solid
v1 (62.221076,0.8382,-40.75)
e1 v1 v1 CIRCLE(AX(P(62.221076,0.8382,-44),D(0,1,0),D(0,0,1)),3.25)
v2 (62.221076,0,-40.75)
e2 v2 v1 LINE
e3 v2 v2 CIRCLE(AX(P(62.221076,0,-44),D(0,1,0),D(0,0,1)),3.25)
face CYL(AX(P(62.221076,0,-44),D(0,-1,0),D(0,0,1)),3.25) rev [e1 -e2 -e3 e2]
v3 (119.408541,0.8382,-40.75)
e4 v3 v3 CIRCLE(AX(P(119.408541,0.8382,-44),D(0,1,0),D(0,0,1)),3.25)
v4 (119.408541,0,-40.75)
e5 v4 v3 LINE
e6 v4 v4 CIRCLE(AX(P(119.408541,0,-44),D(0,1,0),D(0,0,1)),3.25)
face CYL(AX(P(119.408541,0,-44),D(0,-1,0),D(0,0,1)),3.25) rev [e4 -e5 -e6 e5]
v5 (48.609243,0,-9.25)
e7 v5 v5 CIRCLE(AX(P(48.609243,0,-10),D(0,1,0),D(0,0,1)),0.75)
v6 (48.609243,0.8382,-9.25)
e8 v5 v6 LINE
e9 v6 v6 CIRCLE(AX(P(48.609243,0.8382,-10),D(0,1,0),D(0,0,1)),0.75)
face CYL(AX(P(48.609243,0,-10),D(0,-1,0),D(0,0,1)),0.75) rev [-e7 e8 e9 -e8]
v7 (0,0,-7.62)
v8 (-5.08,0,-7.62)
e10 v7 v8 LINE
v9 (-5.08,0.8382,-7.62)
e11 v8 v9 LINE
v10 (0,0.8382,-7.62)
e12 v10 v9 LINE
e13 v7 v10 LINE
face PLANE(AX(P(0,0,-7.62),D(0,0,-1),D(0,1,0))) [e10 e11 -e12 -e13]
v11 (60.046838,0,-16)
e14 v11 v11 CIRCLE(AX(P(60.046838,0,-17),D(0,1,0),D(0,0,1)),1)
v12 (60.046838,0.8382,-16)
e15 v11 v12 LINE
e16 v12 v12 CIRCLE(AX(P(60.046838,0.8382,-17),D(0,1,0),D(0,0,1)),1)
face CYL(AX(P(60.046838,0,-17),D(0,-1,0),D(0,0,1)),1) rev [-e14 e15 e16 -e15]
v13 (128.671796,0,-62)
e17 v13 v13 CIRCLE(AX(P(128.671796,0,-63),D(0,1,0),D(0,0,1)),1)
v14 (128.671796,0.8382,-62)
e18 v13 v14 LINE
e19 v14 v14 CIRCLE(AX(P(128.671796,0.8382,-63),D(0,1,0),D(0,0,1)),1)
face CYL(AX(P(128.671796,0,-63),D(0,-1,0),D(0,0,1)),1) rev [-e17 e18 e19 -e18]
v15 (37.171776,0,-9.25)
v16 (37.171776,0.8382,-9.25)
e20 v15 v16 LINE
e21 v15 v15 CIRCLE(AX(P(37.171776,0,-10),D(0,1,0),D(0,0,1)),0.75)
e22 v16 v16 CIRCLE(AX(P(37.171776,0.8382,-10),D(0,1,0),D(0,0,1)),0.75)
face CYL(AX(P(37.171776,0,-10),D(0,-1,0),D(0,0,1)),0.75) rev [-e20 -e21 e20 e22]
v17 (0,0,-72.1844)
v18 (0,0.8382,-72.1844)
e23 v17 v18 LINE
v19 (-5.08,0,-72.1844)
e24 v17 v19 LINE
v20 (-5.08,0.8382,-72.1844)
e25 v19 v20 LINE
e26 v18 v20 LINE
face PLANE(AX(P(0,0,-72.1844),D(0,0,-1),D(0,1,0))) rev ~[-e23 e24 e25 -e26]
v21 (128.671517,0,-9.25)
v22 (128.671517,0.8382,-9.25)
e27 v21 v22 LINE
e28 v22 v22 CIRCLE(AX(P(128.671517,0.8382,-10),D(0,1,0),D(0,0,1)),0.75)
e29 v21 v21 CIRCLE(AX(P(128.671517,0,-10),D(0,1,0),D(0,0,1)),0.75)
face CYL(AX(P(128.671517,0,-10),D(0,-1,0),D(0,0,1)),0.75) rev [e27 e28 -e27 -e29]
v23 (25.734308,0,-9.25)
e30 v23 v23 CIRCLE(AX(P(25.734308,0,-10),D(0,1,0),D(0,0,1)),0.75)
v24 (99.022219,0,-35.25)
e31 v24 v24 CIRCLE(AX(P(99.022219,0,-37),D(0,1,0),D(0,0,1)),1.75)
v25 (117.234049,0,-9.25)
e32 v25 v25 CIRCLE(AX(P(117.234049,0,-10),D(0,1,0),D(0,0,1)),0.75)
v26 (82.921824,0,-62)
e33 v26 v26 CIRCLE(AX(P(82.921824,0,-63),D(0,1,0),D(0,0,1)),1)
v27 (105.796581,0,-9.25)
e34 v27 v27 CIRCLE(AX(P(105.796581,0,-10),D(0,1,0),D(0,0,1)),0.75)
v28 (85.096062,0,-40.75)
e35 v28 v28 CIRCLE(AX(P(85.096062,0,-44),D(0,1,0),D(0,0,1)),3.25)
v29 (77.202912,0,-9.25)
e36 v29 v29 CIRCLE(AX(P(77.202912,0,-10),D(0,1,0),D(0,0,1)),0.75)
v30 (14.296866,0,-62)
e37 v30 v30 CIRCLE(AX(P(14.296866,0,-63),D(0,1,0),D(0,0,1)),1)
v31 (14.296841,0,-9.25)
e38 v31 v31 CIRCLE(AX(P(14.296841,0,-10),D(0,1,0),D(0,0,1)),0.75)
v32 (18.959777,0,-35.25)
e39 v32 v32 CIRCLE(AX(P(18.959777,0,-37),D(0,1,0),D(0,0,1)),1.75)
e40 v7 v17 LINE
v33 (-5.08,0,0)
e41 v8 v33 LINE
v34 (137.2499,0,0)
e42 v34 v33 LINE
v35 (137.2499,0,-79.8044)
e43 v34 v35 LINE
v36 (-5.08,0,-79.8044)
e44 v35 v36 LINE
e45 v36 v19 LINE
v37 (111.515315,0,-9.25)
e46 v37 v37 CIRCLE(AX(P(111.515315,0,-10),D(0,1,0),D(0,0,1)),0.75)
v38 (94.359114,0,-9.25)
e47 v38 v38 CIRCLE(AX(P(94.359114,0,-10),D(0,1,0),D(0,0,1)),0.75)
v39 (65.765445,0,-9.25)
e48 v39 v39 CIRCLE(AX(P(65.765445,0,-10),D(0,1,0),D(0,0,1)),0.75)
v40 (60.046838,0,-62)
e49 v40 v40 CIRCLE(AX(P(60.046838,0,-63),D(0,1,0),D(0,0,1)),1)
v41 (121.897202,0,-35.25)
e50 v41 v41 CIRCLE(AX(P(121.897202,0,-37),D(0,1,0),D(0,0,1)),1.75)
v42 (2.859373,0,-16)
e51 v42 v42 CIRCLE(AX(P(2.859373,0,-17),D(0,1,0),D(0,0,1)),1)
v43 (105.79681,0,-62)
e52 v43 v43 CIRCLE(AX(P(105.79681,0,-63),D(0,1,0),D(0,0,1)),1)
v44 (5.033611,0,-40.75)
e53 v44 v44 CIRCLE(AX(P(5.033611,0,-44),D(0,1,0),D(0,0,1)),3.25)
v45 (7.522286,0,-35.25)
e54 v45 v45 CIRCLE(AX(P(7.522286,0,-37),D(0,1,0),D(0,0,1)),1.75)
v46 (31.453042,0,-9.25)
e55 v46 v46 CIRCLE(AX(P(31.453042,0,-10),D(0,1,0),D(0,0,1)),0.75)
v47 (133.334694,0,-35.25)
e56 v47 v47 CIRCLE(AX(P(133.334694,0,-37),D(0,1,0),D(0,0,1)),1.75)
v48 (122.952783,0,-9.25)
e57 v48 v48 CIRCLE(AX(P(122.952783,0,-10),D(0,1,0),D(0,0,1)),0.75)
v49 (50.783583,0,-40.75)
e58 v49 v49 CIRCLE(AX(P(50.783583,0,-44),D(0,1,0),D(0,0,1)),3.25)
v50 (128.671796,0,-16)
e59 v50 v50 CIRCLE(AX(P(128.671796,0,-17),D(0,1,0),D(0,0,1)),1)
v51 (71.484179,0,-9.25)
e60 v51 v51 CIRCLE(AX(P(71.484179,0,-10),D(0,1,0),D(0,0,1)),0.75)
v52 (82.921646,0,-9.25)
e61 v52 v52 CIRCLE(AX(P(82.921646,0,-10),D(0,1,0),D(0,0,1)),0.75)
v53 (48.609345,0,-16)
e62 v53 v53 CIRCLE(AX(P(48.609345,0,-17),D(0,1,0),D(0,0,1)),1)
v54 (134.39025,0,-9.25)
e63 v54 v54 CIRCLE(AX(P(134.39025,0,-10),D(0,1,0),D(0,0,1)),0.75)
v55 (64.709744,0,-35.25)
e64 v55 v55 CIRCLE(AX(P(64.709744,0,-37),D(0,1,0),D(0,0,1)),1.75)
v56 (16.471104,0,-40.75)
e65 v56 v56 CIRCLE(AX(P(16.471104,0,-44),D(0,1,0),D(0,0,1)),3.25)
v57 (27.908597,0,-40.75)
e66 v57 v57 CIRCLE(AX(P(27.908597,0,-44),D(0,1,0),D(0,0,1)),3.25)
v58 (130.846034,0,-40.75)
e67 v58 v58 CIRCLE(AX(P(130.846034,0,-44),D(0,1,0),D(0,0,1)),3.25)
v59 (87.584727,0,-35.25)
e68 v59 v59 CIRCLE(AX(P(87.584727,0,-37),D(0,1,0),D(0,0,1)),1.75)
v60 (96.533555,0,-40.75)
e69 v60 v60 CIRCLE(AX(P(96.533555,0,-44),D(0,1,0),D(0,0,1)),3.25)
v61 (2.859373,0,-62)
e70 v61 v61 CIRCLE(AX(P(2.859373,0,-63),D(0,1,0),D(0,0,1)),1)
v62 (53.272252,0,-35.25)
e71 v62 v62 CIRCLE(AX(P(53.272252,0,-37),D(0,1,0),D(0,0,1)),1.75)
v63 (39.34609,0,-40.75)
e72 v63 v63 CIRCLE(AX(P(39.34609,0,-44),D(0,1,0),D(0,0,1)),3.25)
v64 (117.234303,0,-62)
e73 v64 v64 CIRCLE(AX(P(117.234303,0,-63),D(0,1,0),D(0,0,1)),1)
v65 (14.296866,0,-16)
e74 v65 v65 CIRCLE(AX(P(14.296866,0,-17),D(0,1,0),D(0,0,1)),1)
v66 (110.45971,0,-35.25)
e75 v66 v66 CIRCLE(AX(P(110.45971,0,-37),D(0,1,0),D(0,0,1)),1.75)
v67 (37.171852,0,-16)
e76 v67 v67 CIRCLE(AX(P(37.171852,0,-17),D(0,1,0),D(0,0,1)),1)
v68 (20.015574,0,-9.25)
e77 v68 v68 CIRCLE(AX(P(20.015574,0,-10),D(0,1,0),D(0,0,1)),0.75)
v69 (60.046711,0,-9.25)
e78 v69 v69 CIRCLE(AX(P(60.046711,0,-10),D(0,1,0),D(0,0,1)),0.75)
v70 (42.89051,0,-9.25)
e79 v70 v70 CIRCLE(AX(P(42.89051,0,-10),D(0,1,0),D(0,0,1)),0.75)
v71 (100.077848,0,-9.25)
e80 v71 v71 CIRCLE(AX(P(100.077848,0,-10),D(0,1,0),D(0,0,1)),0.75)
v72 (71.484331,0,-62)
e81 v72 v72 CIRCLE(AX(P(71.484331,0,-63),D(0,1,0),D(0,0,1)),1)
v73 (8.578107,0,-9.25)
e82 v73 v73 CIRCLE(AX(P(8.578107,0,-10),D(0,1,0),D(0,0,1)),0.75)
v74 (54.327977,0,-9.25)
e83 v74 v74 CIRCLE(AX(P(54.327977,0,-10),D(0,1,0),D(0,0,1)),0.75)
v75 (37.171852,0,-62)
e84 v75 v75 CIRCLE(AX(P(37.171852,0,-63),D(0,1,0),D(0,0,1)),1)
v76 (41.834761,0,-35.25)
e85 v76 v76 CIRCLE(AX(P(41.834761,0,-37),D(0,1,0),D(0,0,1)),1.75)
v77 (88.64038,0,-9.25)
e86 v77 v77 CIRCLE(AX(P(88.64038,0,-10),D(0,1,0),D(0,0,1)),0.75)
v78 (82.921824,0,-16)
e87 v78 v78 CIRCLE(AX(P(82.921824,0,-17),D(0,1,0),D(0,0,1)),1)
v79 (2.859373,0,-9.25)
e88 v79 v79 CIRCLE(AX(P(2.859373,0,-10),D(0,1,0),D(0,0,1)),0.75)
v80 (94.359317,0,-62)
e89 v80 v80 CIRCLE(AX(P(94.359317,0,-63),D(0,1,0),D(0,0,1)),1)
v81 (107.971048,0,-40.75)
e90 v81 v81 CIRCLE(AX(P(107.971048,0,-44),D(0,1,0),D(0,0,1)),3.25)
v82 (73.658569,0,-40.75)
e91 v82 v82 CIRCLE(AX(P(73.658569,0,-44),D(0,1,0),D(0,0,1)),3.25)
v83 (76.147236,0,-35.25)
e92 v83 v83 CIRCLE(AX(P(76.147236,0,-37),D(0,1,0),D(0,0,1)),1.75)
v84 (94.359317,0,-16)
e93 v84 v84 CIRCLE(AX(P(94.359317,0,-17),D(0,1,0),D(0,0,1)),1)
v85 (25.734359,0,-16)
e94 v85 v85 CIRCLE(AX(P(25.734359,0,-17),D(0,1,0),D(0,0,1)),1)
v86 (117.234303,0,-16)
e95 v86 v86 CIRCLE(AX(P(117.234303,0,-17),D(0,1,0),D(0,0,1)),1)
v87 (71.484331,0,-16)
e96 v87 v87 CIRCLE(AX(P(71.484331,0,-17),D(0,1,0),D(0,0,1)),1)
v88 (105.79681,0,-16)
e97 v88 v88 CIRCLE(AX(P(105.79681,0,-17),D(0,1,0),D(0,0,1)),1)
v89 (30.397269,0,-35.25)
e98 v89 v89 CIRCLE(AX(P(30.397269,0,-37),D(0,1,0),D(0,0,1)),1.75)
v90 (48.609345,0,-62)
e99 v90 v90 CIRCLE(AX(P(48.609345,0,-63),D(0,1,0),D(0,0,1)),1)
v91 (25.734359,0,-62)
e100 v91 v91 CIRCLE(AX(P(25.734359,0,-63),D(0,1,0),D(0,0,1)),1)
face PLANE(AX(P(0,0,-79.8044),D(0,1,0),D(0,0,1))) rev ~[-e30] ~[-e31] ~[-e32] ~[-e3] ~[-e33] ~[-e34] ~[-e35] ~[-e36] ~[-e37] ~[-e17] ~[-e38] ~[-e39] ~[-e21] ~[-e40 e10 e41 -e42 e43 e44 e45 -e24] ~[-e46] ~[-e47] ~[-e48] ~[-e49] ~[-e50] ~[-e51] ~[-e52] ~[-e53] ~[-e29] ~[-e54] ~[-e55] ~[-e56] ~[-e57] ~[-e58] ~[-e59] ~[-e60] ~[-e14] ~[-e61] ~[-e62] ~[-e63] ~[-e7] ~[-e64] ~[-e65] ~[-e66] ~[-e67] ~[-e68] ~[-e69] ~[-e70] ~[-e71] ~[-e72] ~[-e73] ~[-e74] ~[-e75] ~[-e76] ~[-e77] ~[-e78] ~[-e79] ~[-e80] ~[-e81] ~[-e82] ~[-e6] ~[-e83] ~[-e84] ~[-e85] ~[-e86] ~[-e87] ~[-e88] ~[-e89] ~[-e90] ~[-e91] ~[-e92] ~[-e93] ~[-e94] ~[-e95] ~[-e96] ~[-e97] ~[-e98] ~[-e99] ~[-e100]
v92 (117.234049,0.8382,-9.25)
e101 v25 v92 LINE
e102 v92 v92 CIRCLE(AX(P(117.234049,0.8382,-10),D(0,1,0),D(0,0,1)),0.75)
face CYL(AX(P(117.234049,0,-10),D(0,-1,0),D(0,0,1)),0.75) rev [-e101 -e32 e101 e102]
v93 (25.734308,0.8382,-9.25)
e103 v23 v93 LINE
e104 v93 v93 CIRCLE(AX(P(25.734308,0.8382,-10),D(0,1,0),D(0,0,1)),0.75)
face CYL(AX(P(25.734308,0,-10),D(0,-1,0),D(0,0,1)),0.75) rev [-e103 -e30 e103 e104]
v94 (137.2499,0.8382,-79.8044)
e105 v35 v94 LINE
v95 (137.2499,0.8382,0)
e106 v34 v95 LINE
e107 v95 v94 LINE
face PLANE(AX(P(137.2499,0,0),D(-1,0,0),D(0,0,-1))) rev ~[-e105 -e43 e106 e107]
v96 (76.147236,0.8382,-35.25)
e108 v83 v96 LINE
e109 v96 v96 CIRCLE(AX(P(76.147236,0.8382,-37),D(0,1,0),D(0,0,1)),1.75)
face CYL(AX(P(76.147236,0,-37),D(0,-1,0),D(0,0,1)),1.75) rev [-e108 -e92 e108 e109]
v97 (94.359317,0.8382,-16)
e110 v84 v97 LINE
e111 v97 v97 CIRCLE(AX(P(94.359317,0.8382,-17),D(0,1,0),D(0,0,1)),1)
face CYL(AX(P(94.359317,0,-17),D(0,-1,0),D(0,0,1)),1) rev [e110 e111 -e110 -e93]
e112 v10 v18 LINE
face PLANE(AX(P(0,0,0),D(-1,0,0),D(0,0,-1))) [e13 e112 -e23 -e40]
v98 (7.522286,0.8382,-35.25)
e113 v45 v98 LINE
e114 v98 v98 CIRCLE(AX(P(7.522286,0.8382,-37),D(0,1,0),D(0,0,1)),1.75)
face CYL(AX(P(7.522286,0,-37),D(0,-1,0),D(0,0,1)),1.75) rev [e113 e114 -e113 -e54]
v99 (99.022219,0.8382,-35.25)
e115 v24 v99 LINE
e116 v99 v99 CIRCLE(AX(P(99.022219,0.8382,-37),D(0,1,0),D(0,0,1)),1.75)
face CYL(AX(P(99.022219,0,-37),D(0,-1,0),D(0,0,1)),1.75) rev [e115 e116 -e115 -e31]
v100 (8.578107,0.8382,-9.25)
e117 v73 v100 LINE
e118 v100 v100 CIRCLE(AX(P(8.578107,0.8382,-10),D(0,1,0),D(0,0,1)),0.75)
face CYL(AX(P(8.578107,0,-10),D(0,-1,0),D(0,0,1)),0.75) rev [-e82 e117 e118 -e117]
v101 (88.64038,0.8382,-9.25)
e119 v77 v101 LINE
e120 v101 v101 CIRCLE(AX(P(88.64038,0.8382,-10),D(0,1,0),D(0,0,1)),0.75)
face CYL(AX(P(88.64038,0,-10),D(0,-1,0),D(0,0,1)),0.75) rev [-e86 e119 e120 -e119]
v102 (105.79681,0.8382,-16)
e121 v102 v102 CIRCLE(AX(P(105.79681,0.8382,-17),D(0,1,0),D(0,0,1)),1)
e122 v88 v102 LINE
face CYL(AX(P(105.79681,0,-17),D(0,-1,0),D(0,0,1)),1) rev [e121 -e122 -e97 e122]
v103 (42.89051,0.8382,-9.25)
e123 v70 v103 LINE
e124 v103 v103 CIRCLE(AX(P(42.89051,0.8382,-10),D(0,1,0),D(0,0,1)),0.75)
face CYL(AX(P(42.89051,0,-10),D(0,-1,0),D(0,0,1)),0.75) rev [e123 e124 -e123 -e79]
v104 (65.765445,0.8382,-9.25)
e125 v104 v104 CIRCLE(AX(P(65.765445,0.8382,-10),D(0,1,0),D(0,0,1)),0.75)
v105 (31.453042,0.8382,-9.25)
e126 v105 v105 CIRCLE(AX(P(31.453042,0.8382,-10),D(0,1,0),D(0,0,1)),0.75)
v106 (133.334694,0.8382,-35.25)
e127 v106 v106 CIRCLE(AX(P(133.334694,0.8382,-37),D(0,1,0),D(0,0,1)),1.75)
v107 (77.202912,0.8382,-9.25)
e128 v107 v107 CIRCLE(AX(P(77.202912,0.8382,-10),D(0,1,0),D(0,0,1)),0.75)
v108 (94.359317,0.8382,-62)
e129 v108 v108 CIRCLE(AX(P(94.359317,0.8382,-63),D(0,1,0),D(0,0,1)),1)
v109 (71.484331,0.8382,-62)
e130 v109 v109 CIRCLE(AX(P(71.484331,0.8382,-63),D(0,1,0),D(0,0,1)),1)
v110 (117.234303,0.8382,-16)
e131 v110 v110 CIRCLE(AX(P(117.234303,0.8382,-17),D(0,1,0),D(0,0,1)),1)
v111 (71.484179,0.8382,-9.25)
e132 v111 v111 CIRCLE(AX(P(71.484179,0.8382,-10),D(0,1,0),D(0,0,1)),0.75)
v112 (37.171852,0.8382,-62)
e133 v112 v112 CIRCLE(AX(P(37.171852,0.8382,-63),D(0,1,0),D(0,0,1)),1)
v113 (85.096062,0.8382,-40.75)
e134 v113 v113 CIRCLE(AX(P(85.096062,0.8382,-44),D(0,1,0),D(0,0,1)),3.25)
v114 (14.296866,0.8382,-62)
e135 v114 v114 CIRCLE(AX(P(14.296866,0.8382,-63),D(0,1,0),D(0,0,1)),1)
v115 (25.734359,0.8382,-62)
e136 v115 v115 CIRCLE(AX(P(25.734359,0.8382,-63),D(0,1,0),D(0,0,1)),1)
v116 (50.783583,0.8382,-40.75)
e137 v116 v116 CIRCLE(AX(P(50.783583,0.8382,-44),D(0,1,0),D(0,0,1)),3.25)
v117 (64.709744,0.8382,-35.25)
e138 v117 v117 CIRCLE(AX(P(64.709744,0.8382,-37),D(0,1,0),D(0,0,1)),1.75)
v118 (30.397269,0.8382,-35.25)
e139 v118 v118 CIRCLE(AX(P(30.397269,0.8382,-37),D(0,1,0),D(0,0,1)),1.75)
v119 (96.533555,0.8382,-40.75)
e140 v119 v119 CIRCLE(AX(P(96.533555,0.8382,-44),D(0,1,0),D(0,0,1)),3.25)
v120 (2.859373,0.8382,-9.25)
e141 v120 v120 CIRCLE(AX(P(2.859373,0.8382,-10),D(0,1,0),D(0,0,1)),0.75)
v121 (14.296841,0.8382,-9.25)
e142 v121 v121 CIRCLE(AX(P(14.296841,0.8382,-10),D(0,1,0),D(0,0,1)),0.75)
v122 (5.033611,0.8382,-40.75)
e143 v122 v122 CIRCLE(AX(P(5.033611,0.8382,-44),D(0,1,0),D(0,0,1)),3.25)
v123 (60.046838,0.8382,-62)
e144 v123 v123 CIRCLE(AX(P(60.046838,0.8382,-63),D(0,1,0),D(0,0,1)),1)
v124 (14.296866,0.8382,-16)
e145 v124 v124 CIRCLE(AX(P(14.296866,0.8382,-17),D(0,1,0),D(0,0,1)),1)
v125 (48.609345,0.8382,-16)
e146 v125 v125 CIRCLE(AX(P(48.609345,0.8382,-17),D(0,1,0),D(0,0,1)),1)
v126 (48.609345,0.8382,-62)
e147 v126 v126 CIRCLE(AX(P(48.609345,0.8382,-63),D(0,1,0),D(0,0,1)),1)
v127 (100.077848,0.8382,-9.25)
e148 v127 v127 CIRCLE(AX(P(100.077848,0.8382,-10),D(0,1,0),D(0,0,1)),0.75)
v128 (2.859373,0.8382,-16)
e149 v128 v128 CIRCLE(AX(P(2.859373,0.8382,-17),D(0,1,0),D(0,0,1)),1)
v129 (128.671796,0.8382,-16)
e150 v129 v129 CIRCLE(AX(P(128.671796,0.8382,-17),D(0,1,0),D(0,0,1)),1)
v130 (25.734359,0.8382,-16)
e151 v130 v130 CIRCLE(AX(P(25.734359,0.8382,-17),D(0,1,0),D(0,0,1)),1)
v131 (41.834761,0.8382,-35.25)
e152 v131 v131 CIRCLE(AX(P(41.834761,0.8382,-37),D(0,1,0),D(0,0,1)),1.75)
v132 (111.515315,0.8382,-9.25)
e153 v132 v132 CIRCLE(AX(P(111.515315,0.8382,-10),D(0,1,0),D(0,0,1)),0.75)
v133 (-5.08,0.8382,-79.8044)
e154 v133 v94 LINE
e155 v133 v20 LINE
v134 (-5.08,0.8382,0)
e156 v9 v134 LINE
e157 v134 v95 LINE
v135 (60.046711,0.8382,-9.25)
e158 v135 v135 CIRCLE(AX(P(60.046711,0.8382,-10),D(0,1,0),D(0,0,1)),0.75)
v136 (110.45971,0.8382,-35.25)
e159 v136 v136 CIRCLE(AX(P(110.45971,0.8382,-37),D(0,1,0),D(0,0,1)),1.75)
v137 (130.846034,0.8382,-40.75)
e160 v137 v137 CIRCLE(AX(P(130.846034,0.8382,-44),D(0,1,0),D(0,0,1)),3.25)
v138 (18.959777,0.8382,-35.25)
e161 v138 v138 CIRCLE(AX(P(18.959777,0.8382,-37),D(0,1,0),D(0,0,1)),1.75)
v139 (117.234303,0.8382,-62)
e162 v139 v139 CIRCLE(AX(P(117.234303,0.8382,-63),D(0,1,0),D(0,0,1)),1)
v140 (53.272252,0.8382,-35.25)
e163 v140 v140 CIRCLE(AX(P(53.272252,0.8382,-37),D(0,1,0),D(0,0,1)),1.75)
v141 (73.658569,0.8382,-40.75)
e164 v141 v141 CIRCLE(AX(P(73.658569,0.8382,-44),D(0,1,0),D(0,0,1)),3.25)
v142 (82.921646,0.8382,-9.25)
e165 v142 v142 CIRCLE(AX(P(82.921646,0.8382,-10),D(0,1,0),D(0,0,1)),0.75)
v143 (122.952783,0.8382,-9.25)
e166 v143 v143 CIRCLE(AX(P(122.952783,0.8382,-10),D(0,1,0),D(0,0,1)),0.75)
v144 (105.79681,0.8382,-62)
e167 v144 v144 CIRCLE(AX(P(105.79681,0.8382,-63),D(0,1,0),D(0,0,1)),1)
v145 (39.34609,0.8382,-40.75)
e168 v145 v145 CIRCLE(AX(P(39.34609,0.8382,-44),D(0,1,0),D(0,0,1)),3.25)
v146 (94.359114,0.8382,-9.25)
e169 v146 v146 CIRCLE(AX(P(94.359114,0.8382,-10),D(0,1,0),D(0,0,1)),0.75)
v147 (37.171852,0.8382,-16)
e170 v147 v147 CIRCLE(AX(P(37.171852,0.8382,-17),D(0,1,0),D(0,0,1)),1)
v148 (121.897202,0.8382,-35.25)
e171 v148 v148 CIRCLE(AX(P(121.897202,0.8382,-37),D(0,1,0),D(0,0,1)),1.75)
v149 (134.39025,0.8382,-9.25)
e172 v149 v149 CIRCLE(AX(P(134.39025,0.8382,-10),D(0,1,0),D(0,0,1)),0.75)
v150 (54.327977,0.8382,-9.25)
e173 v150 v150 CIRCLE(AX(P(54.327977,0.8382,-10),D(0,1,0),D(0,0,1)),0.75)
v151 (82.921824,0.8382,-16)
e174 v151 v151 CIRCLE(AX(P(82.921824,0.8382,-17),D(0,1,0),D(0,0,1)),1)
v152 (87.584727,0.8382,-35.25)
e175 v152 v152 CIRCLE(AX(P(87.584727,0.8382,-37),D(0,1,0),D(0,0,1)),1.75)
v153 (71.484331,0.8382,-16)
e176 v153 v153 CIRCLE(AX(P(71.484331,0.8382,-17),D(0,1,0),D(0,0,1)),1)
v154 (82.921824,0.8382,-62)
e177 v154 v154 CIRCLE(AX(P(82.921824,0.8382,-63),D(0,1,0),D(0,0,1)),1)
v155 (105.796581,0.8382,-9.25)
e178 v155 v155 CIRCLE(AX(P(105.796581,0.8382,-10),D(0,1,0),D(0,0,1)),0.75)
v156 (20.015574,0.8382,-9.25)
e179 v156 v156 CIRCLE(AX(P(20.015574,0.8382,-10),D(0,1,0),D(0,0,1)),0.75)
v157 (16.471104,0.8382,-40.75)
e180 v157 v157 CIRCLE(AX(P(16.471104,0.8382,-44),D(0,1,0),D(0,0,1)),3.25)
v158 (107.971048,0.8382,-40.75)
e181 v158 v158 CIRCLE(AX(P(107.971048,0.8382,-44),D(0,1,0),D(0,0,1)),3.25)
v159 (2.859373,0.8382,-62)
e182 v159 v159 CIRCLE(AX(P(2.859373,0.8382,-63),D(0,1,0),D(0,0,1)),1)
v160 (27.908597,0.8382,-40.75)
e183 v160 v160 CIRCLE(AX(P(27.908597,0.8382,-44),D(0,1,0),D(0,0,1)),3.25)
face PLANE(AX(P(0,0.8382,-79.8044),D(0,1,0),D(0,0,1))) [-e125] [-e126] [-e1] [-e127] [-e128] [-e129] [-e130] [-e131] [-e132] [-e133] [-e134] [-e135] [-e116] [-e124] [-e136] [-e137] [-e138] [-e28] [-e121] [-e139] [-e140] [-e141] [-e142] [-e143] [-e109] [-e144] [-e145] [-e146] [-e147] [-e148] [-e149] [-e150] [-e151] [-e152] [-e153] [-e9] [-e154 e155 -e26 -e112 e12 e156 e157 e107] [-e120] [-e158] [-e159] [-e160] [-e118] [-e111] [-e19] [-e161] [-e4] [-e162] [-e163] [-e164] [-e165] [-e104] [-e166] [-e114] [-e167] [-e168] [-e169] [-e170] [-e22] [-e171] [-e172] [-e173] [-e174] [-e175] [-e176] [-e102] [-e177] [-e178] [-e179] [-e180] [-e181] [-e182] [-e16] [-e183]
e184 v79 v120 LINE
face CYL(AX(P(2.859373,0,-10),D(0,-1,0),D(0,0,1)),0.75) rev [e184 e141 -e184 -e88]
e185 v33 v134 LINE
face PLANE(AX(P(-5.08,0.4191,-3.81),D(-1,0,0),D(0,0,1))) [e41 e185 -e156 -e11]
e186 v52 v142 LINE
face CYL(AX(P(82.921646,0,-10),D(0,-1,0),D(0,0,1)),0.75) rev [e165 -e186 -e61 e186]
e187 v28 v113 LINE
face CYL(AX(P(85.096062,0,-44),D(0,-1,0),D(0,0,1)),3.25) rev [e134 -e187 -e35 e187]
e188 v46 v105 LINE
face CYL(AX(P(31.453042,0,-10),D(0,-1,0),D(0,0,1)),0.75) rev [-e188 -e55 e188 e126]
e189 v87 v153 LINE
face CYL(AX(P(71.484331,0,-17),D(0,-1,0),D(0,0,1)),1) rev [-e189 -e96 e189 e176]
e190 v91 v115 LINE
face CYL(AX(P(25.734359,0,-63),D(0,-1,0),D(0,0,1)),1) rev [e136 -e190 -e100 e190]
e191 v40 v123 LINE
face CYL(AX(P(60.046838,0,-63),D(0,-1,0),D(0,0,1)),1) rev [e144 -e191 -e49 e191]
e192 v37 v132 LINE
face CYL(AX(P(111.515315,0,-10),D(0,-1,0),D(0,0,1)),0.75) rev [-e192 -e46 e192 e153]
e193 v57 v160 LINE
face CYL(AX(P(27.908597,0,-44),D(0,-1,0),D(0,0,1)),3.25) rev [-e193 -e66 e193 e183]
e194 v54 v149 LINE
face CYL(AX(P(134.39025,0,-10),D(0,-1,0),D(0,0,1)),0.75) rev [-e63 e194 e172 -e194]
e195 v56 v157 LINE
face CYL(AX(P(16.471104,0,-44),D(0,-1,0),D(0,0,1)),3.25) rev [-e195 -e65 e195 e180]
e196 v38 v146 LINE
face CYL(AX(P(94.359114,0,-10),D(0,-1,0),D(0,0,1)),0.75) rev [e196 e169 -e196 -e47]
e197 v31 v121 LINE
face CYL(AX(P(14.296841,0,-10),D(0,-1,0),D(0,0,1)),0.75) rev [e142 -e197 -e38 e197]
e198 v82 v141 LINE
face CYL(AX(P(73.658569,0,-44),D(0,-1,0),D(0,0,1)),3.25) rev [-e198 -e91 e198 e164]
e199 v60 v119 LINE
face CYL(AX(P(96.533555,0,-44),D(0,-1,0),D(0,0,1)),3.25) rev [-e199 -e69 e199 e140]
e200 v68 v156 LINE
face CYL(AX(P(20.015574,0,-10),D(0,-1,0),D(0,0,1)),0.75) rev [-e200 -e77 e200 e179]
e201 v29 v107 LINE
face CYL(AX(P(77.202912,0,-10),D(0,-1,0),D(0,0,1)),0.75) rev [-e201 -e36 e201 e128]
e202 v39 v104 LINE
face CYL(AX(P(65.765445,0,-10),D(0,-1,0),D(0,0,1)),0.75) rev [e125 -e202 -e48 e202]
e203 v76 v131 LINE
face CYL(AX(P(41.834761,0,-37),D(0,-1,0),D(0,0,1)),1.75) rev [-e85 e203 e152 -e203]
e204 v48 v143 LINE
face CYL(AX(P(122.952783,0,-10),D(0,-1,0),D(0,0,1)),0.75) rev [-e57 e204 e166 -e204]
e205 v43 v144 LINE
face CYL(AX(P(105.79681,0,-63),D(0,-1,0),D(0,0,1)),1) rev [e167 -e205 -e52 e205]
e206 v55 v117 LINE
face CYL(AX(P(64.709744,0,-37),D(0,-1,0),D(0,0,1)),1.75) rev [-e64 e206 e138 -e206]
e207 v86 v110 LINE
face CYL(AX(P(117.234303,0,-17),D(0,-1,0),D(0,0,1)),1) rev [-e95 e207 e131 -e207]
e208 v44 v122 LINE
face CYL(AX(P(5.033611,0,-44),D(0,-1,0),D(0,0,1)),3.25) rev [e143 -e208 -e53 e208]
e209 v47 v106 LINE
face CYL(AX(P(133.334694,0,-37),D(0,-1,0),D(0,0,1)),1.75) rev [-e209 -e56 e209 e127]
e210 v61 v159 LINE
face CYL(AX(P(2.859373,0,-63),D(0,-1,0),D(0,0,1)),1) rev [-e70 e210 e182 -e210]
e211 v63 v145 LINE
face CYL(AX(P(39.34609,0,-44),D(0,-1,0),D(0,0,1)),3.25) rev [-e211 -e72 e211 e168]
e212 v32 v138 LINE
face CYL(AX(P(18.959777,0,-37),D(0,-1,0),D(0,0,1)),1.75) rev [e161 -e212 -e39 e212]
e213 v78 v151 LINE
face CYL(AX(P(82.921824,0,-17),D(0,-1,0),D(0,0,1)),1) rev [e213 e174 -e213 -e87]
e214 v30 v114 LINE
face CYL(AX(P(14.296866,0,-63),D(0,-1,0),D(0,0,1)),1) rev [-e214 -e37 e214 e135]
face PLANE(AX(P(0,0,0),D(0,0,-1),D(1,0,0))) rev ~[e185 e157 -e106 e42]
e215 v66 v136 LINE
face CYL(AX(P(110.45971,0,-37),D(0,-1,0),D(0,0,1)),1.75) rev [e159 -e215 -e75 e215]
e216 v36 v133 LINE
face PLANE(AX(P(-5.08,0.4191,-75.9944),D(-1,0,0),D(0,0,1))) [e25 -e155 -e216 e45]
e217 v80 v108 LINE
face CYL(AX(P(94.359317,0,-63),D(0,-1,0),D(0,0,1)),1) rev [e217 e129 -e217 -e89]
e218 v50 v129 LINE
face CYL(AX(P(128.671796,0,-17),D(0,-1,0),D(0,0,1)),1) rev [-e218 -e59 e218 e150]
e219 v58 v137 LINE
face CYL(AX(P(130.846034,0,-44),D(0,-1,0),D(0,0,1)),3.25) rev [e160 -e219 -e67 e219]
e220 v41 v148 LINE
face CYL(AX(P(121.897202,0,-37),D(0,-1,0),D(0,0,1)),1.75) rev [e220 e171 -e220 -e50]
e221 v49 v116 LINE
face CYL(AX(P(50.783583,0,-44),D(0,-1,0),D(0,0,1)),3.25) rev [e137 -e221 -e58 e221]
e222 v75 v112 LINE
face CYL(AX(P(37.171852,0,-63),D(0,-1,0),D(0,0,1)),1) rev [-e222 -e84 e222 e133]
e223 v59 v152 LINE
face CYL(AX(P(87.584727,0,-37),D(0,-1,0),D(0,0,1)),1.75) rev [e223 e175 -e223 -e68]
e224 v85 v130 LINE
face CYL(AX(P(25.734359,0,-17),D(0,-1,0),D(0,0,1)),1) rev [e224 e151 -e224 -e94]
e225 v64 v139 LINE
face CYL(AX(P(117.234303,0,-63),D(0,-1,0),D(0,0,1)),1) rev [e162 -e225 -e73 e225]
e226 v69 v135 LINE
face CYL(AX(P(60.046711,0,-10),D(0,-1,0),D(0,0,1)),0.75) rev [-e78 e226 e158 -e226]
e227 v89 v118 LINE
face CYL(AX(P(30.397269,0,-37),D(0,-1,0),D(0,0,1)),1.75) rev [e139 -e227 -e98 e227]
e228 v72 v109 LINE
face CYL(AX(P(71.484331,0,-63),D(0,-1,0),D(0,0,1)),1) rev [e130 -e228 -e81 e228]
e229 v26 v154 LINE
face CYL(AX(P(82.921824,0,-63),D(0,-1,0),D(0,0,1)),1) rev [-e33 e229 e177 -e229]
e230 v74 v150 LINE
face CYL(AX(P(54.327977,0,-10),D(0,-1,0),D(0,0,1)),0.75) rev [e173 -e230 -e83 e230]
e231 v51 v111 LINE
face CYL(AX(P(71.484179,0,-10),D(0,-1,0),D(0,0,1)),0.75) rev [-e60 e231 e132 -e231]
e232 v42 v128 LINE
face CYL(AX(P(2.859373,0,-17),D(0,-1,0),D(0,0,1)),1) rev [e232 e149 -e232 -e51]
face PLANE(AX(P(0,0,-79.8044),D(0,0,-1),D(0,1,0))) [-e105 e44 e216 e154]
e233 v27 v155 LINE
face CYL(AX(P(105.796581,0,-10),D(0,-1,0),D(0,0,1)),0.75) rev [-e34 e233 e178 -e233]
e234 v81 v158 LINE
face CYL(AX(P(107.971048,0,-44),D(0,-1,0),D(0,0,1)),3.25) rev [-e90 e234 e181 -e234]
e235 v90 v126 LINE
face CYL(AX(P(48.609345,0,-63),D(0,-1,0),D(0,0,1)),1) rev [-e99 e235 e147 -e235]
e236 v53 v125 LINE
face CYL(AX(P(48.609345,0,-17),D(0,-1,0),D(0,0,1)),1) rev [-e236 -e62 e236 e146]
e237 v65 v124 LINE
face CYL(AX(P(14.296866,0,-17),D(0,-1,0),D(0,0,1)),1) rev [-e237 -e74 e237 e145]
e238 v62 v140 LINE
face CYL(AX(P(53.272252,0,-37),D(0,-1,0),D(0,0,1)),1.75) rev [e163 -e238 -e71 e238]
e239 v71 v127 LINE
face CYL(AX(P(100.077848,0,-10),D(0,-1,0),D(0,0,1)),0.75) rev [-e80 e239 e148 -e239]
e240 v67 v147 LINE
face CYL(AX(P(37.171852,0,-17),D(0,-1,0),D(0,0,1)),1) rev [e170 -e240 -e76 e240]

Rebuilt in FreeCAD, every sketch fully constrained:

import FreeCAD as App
import Part
import Sketcher
from FreeCAD import Vector

doc = App.newDocument("Part")
body = doc.addObject("PartDesign::Body", "Body")

sketch1 = body.newObject("Sketcher::SketchObject", "Sketch")
sketch1.AttachmentSupport = (doc.getObject("XZ_Plane"), [""])
sketch1.MapMode = "FlatFace"
sketch1.addGeometry([
    Part.LineSegment(Vector(0, -79.8, 0), Vector(0, 0, 0)),
    Part.LineSegment(Vector(0, 0, 0), Vector(137.2, 0, 0)),
    Part.LineSegment(Vector(137.2, 0, 0), Vector(137.2, -79.8, 0)),
    Part.LineSegment(Vector(137.2, -79.8, 0), Vector(0, -79.8, 0)),
    Part.Circle(Vector(2.9, -10, 0), Vector(0, 0, 1), 0.8),
    Part.Circle(Vector(8.6, -10, 0), Vector(0, 0, 1), 0.8),
    Part.Circle(Vector(14.3, -10, 0), Vector(0, 0, 1), 0.8),
    Part.Circle(Vector(20, -10, 0), Vector(0, 0, 1), 0.8),
    Part.Circle(Vector(25.7, -10, 0), Vector(0, 0, 1), 0.8),
    Part.Circle(Vector(31.5, -10, 0), Vector(0, 0, 1), 0.8),
    Part.Circle(Vector(2.9, -17, 0), Vector(0, 0, 1), 1),
    Part.Circle(Vector(14.3, -17, 0), Vector(0, 0, 1), 1),
    Part.Circle(Vector(25.7, -17, 0), Vector(0, 0, 1), 1),
    Part.Circle(Vector(37.2, -10, 0), Vector(0, 0, 1), 0.8),
    Part.Circle(Vector(42.9, -10, 0), Vector(0, 0, 1), 0.8),
    Part.Circle(Vector(48.6, -10, 0), Vector(0, 0, 1), 0.8),
    Part.Circle(Vector(54.3, -10, 0), Vector(0, 0, 1), 0.8),
    Part.Circle(Vector(60, -10, 0), Vector(0, 0, 1), 0.8),
    Part.Circle(Vector(65.8, -10, 0), Vector(0, 0, 1), 0.8),
    Part.Circle(Vector(37.2, -17, 0), Vector(0, 0, 1), 1),
    Part.Circle(Vector(48.6, -17, 0), Vector(0, 0, 1), 1),
    Part.Circle(Vector(60, -17, 0), Vector(0, 0, 1), 1),
    Part.Circle(Vector(71.5, -10, 0), Vector(0, 0, 1), 0.8),
    Part.Circle(Vector(77.2, -10, 0), Vector(0, 0, 1), 0.8),
    Part.Circle(Vector(82.9, -10, 0), Vector(0, 0, 1), 0.8),
    Part.Circle(Vector(88.6, -10, 0), Vector(0, 0, 1), 0.8),
    Part.Circle(Vector(94.4, -10, 0), Vector(0, 0, 1), 0.8),
    Part.Circle(Vector(100.1, -10, 0), Vector(0, 0, 1), 0.8),
    Part.Circle(Vector(71.5, -17, 0), Vector(0, 0, 1), 1),
    Part.Circle(Vector(82.9, -17, 0), Vector(0, 0, 1), 1),
    Part.Circle(Vector(94.4, -17, 0), Vector(0, 0, 1), 1),
    Part.Circle(Vector(105.8, -10, 0), Vector(0, 0, 1), 0.8),
    Part.Circle(Vector(111.5, -10, 0), Vector(0, 0, 1), 0.8),
    Part.Circle(Vector(117.2, -10, 0), Vector(0, 0, 1), 0.8),
    Part.Circle(Vector(123, -10, 0), Vector(0, 0, 1), 0.8),
    Part.Circle(Vector(128.7, -10, 0), Vector(0, 0, 1), 0.8),
    Part.Circle(Vector(134.4, -10, 0), Vector(0, 0, 1), 0.8),
    Part.Circle(Vector(105.8, -17, 0), Vector(0, 0, 1), 1),
    Part.Circle(Vector(117.2, -17, 0), Vector(0, 0, 1), 1),
    Part.Circle(Vector(128.7, -17, 0), Vector(0, 0, 1), 1),
    Part.Circle(Vector(7.5, -37, 0), Vector(0, 0, 1), 1.8),
    Part.Circle(Vector(19, -37, 0), Vector(0, 0, 1), 1.8),
    Part.Circle(Vector(30.4, -37, 0), Vector(0, 0, 1), 1.8),
    Part.Circle(Vector(5, -44, 0), Vector(0, 0, 1), 3.2),
    Part.Circle(Vector(16.5, -44, 0), Vector(0, 0, 1), 3.2),
    Part.Circle(Vector(27.9, -44, 0), Vector(0, 0, 1), 3.2),
    Part.Circle(Vector(41.8, -37, 0), Vector(0, 0, 1), 1.8),
    Part.Circle(Vector(53.3, -37, 0), Vector(0, 0, 1), 1.8),
    Part.Circle(Vector(64.7, -37, 0), Vector(0, 0, 1), 1.8),
    Part.Circle(Vector(39.3, -44, 0), Vector(0, 0, 1), 3.2),
    Part.Circle(Vector(50.8, -44, 0), Vector(0, 0, 1), 3.2),
    Part.Circle(Vector(62.2, -44, 0), Vector(0, 0, 1), 3.2),
    Part.Circle(Vector(2.9, -63, 0), Vector(0, 0, 1), 1),
    Part.Circle(Vector(14.3, -63, 0), Vector(0, 0, 1), 1),
    Part.Circle(Vector(25.7, -63, 0), Vector(0, 0, 1), 1),
    Part.Circle(Vector(37.2, -63, 0), Vector(0, 0, 1), 1),
    Part.Circle(Vector(48.6, -63, 0), Vector(0, 0, 1), 1),
    Part.Circle(Vector(60, -63, 0), Vector(0, 0, 1), 1),
    Part.Circle(Vector(76.1, -37, 0), Vector(0, 0, 1), 1.8),
    Part.Circle(Vector(87.6, -37, 0), Vector(0, 0, 1), 1.8),
    Part.Circle(Vector(99, -37, 0), Vector(0, 0, 1), 1.8),
    Part.Circle(Vector(73.7, -44, 0), Vector(0, 0, 1), 3.2),
    Part.Circle(Vector(85.1, -44, 0), Vector(0, 0, 1), 3.2),
    Part.Circle(Vector(96.5, -44, 0), Vector(0, 0, 1), 3.2),
    Part.Circle(Vector(110.5, -37, 0), Vector(0, 0, 1), 1.8),
    Part.Circle(Vector(121.9, -37, 0), Vector(0, 0, 1), 1.8),
    Part.Circle(Vector(133.3, -37, 0), Vector(0, 0, 1), 1.8),
    Part.Circle(Vector(108, -44, 0), Vector(0, 0, 1), 3.2),
    Part.Circle(Vector(119.4, -44, 0), Vector(0, 0, 1), 3.2),
    Part.Circle(Vector(130.8, -44, 0), Vector(0, 0, 1), 3.2),
    Part.Circle(Vector(71.5, -63, 0), Vector(0, 0, 1), 1),
    Part.Circle(Vector(82.9, -63, 0), Vector(0, 0, 1), 1),
    Part.Circle(Vector(94.4, -63, 0), Vector(0, 0, 1), 1),
    Part.Circle(Vector(105.8, -63, 0), Vector(0, 0, 1), 1),
    Part.Circle(Vector(117.2, -63, 0), Vector(0, 0, 1), 1),
    Part.Circle(Vector(128.7, -63, 0), Vector(0, 0, 1), 1),
], False)
sketch1.addConstraint([
    Sketcher.Constraint("Coincident", 0, 2, 1, 1),
    Sketcher.Constraint("Coincident", 1, 2, 2, 1),
    Sketcher.Constraint("Coincident", 2, 2, 3, 1),
    Sketcher.Constraint("Coincident", 3, 2, 0, 1),
    Sketcher.Constraint("Vertical", 0),
    Sketcher.Constraint("Horizontal", 1),
    Sketcher.Constraint("Vertical", 2),
    Sketcher.Constraint("Horizontal", 3),
    Sketcher.Constraint("Coincident", 0, 2, -1, 1),
    Sketcher.Constraint("Equal", 4, 5),
    Sketcher.Constraint("Equal", 5, 6),
    Sketcher.Constraint("Equal", 6, 7),
    Sketcher.Constraint("Equal", 7, 8),
    Sketcher.Constraint("Equal", 8, 9),
    Sketcher.Constraint("Equal", 10, 11),
    Sketcher.Constraint("Equal", 11, 12),
    Sketcher.Constraint("Equal", 9, 13),
    Sketcher.Constraint("Equal", 13, 14),
    Sketcher.Constraint("Equal", 14, 15),
    Sketcher.Constraint("Equal", 15, 16),
    Sketcher.Constraint("Equal", 16, 17),
    Sketcher.Constraint("Equal", 17, 18),
    Sketcher.Constraint("Equal", 12, 19),
    Sketcher.Constraint("Equal", 19, 20),
    Sketcher.Constraint("Equal", 20, 21),
    Sketcher.Constraint("Equal", 18, 22),
    Sketcher.Constraint("Equal", 22, 23),
    Sketcher.Constraint("Equal", 23, 24),
    Sketcher.Constraint("Equal", 24, 25),
    Sketcher.Constraint("Equal", 25, 26),
    Sketcher.Constraint("Equal", 26, 27),
    Sketcher.Constraint("Equal", 21, 28),
    Sketcher.Constraint("Equal", 28, 29),
    Sketcher.Constraint("Equal", 29, 30),
    Sketcher.Constraint("Equal", 27, 31),
    Sketcher.Constraint("Equal", 31, 32),
    Sketcher.Constraint("Equal", 32, 33),
    Sketcher.Constraint("Equal", 33, 34),
    Sketcher.Constraint("Equal", 34, 35),
    Sketcher.Constraint("Equal", 35, 36),
    Sketcher.Constraint("Equal", 30, 37),
    Sketcher.Constraint("Equal", 37, 38),
    Sketcher.Constraint("Equal", 38, 39),
    Sketcher.Constraint("Equal", 40, 41),
    Sketcher.Constraint("Equal", 41, 42),
    Sketcher.Constraint("Equal", 43, 44),
    Sketcher.Constraint("Equal", 44, 45),
    Sketcher.Constraint("Equal", 42, 46),
    Sketcher.Constraint("Equal", 46, 47),
    Sketcher.Constraint("Equal", 47, 48),
    Sketcher.Constraint("Equal", 45, 49),
    Sketcher.Constraint("Equal", 49, 50),
    Sketcher.Constraint("Equal", 50, 51),
    Sketcher.Constraint("Equal", 39, 52),
    Sketcher.Constraint("Equal", 52, 53),
    Sketcher.Constraint("Equal", 53, 54),
    Sketcher.Constraint("Equal", 54, 55),
    Sketcher.Constraint("Equal", 55, 56),
    Sketcher.Constraint("Equal", 56, 57),
    Sketcher.Constraint("Equal", 48, 58),
    Sketcher.Constraint("Equal", 58, 59),
    Sketcher.Constraint("Equal", 59, 60),
    Sketcher.Constraint("Equal", 51, 61),
    Sketcher.Constraint("Equal", 61, 62),
    Sketcher.Constraint("Equal", 62, 63),
    Sketcher.Constraint("Equal", 60, 64),
    Sketcher.Constraint("Equal", 64, 65),
    Sketcher.Constraint("Equal", 65, 66),
    Sketcher.Constraint("Equal", 63, 67),
    Sketcher.Constraint("Equal", 67, 68),
    Sketcher.Constraint("Equal", 68, 69),
    Sketcher.Constraint("Equal", 57, 70),
    Sketcher.Constraint("Equal", 70, 71),
    Sketcher.Constraint("Equal", 71, 72),
    Sketcher.Constraint("Equal", 72, 73),
    Sketcher.Constraint("Equal", 73, 74),
    Sketcher.Constraint("Equal", 74, 75),
    Sketcher.Constraint("Horizontal", 4, 3, 5, 3),
    Sketcher.Constraint("Horizontal", 5, 3, 6, 3),
    Sketcher.Constraint("Horizontal", 6, 3, 7, 3),
    Sketcher.Constraint("Horizontal", 7, 3, 8, 3),
    Sketcher.Constraint("Horizontal", 8, 3, 9, 3),
    Sketcher.Constraint("Horizontal", 10, 3, 11, 3),
    Sketcher.Constraint("Horizontal", 11, 3, 12, 3),
    Sketcher.Constraint("Horizontal", 9, 3, 13, 3),
    Sketcher.Constraint("Horizontal", 13, 3, 14, 3),
    Sketcher.Constraint("Horizontal", 14, 3, 15, 3),
    Sketcher.Constraint("Horizontal", 15, 3, 16, 3),
    Sketcher.Constraint("Horizontal", 16, 3, 17, 3),
    Sketcher.Constraint("Horizontal", 17, 3, 18, 3),
    Sketcher.Constraint("Horizontal", 12, 3, 19, 3),
    Sketcher.Constraint("Horizontal", 19, 3, 20, 3),
    Sketcher.Constraint("Horizontal", 20, 3, 21, 3),
    Sketcher.Constraint("Horizontal", 18, 3, 22, 3),
    Sketcher.Constraint("Horizontal", 22, 3, 23, 3),
    Sketcher.Constraint("Horizontal", 23, 3, 24, 3),
    Sketcher.Constraint("Horizontal", 24, 3, 25, 3),
    Sketcher.Constraint("Horizontal", 25, 3, 26, 3),
    Sketcher.Constraint("Horizontal", 26, 3, 27, 3),
    Sketcher.Constraint("Horizontal", 21, 3, 28, 3),
    Sketcher.Constraint("Horizontal", 28, 3, 29, 3),
    Sketcher.Constraint("Horizontal", 29, 3, 30, 3),
    Sketcher.Constraint("Horizontal", 27, 3, 31, 3),
    Sketcher.Constraint("Horizontal", 31, 3, 32, 3),
    Sketcher.Constraint("Horizontal", 32, 3, 33, 3),
    Sketcher.Constraint("Horizontal", 33, 3, 34, 3),
    Sketcher.Constraint("Horizontal", 34, 3, 35, 3),
    Sketcher.Constraint("Horizontal", 35, 3, 36, 3),
    Sketcher.Constraint("Horizontal", 30, 3, 37, 3),
    Sketcher.Constraint("Horizontal", 37, 3, 38, 3),
    Sketcher.Constraint("Horizontal", 38, 3, 39, 3),
    Sketcher.Constraint("Horizontal", 40, 3, 41, 3),
    Sketcher.Constraint("Horizontal", 41, 3, 42, 3),
    Sketcher.Constraint("Horizontal", 43, 3, 44, 3),
    Sketcher.Constraint("Horizontal", 44, 3, 45, 3),
    Sketcher.Constraint("Horizontal", 42, 3, 46, 3),
    Sketcher.Constraint("Horizontal", 46, 3, 47, 3),
    Sketcher.Constraint("Horizontal", 47, 3, 48, 3),
    Sketcher.Constraint("Horizontal", 45, 3, 49, 3),
    Sketcher.Constraint("Horizontal", 49, 3, 50, 3),
    Sketcher.Constraint("Horizontal", 50, 3, 51, 3),
    Sketcher.Constraint("Horizontal", 52, 3, 53, 3),
    Sketcher.Constraint("Horizontal", 53, 3, 54, 3),
    Sketcher.Constraint("Horizontal", 54, 3, 55, 3),
    Sketcher.Constraint("Horizontal", 55, 3, 56, 3),
    Sketcher.Constraint("Horizontal", 56, 3, 57, 3),
    Sketcher.Constraint("Horizontal", 48, 3, 58, 3),
    Sketcher.Constraint("Horizontal", 58, 3, 59, 3),
    Sketcher.Constraint("Horizontal", 59, 3, 60, 3),
    Sketcher.Constraint("Horizontal", 51, 3, 61, 3),
    Sketcher.Constraint("Horizontal", 61, 3, 62, 3),
    Sketcher.Constraint("Horizontal", 62, 3, 63, 3),
    Sketcher.Constraint("Horizontal", 60, 3, 64, 3),
    Sketcher.Constraint("Horizontal", 64, 3, 65, 3),
    Sketcher.Constraint("Horizontal", 65, 3, 66, 3),
    Sketcher.Constraint("Horizontal", 63, 3, 67, 3),
    Sketcher.Constraint("Horizontal", 67, 3, 68, 3),
    Sketcher.Constraint("Horizontal", 68, 3, 69, 3),
    Sketcher.Constraint("Horizontal", 57, 3, 70, 3),
    Sketcher.Constraint("Horizontal", 70, 3, 71, 3),
    Sketcher.Constraint("Horizontal", 71, 3, 72, 3),
    Sketcher.Constraint("Horizontal", 72, 3, 73, 3),
    Sketcher.Constraint("Horizontal", 73, 3, 74, 3),
    Sketcher.Constraint("Horizontal", 74, 3, 75, 3),
    Sketcher.Constraint("Vertical", 4, 3, 10, 3),
    Sketcher.Constraint("Vertical", 10, 3, 52, 3),
    Sketcher.Constraint("Vertical", 11, 3, 53, 3),
    Sketcher.Constraint("Vertical", 12, 3, 54, 3),
    Sketcher.Constraint("Vertical", 19, 3, 55, 3),
    Sketcher.Constraint("Vertical", 20, 3, 56, 3),
    Sketcher.Constraint("Vertical", 21, 3, 57, 3),
    Sketcher.Constraint("Vertical", 28, 3, 70, 3),
    Sketcher.Constraint("Vertical", 29, 3, 71, 3),
    Sketcher.Constraint("Vertical", 30, 3, 72, 3),
    Sketcher.Constraint("Vertical", 37, 3, 73, 3),
    Sketcher.Constraint("Vertical", 38, 3, 74, 3),
    Sketcher.Constraint("Vertical", 39, 3, 75, 3),
    Sketcher.Constraint("Diameter", 10, 2.0),
    Sketcher.Constraint("Diameter", 4, 1.5),
    Sketcher.Constraint("Diameter", 40, 3.5),
    Sketcher.Constraint("Diameter", 43, 6.5),
    Sketcher.Constraint("DistanceY", 4, 3, -1, 1, 10.0),
    Sketcher.Constraint("DistanceY", 10, 3, -1, 1, 17.0),
    Sketcher.Constraint("DistanceY", 40, 3, -1, 1, 37.0),
    Sketcher.Constraint("DistanceY", 43, 3, -1, 1, 44.0),
    Sketcher.Constraint("DistanceY", 52, 3, -1, 1, 63.0),
    Sketcher.Constraint("DistanceX", 1, 1, 1, 2, 137.2499),
    Sketcher.Constraint("DistanceY", 0, 1, 0, 2, 79.8044),
    Sketcher.Constraint("DistanceX", -1, 1, 6, 3, 14.296841),
    Sketcher.Constraint("DistanceX", -1, 1, 8, 3, 25.734308),
    Sketcher.Constraint("DistanceX", -1, 1, 9, 3, 31.453042),
    Sketcher.Constraint("DistanceX", -1, 1, 12, 3, 25.734359),
    Sketcher.Constraint("DistanceX", -1, 1, 14, 3, 42.89051),
    Sketcher.Constraint("DistanceX", -1, 1, 17, 3, 60.046711),
    Sketcher.Constraint("DistanceX", -1, 1, 19, 3, 37.171852),
    Sketcher.Constraint("DistanceX", -1, 1, 22, 3, 71.484179),
    Sketcher.Constraint("DistanceX", -1, 1, 25, 3, 88.64038),
    Sketcher.Constraint("DistanceX", -1, 1, 28, 3, 71.484331),
    Sketcher.Constraint("DistanceX", -1, 1, 31, 3, 105.796581),
    Sketcher.Constraint("DistanceX", -1, 1, 33, 3, 117.234049),
    Sketcher.Constraint("DistanceX", -1, 1, 36, 3, 134.39025),
    Sketcher.Constraint("DistanceX", -1, 1, 37, 3, 105.79681),
    Sketcher.Constraint("DistanceX", -1, 1, 42, 3, 30.397269),
    Sketcher.Constraint("DistanceX", -1, 1, 43, 3, 5.033611),
    Sketcher.Constraint("DistanceX", -1, 1, 46, 3, 41.834761),
    Sketcher.Constraint("DistanceX", -1, 1, 49, 3, 39.34609),
    Sketcher.Constraint("DistanceX", -1, 1, 60, 3, 99.022219),
    Sketcher.Constraint("DistanceX", -1, 1, 61, 3, 73.658569),
    Sketcher.Constraint("DistanceX", -1, 1, 62, 3, 85.096062),
    Sketcher.Constraint("DistanceX", -1, 1, 64, 3, 110.45971),
    Sketcher.Constraint("DistanceX", -1, 1, 68, 3, 119.408541),
    Sketcher.Constraint("DistanceX", -1, 1, 4, 3, 2.859373),
    Sketcher.Constraint("DistanceX", -1, 1, 5, 3, 8.578107),
    Sketcher.Constraint("DistanceX", -1, 1, 7, 3, 20.015574),
    Sketcher.Constraint("DistanceX", -1, 1, 11, 3, 14.296866),
    Sketcher.Constraint("DistanceX", -1, 1, 13, 3, 37.171776),
    Sketcher.Constraint("DistanceX", -1, 1, 15, 3, 48.609243),
    Sketcher.Constraint("DistanceX", -1, 1, 16, 3, 54.327977),
    Sketcher.Constraint("DistanceX", -1, 1, 18, 3, 65.765445),
    Sketcher.Constraint("DistanceX", -1, 1, 20, 3, 48.609345),
    Sketcher.Constraint("DistanceX", -1, 1, 21, 3, 60.046838),
    Sketcher.Constraint("DistanceX", -1, 1, 23, 3, 77.202912),
    Sketcher.Constraint("DistanceX", -1, 1, 24, 3, 82.921646),
    Sketcher.Constraint("DistanceX", -1, 1, 26, 3, 94.359114),
    Sketcher.Constraint("DistanceX", -1, 1, 27, 3, 100.077848),
    Sketcher.Constraint("DistanceX", -1, 1, 29, 3, 82.921824),
    Sketcher.Constraint("DistanceX", -1, 1, 30, 3, 94.359317),
    Sketcher.Constraint("DistanceX", -1, 1, 32, 3, 111.515315),
    Sketcher.Constraint("DistanceX", -1, 1, 34, 3, 122.952783),
    Sketcher.Constraint("DistanceX", -1, 1, 35, 3, 128.671517),
    Sketcher.Constraint("DistanceX", -1, 1, 38, 3, 117.234303),
    Sketcher.Constraint("DistanceX", -1, 1, 39, 3, 128.671796),
    Sketcher.Constraint("DistanceX", -1, 1, 40, 3, 7.522286),
    Sketcher.Constraint("DistanceX", -1, 1, 41, 3, 18.959777),
    Sketcher.Constraint("DistanceX", -1, 1, 44, 3, 16.471104),
    Sketcher.Constraint("DistanceX", -1, 1, 45, 3, 27.908597),
    Sketcher.Constraint("DistanceX", -1, 1, 47, 3, 53.272252),
    Sketcher.Constraint("DistanceX", -1, 1, 48, 3, 64.709744),
    Sketcher.Constraint("DistanceX", -1, 1, 50, 3, 50.783583),
    Sketcher.Constraint("DistanceX", -1, 1, 51, 3, 62.221076),
    Sketcher.Constraint("DistanceX", -1, 1, 58, 3, 76.147236),
    Sketcher.Constraint("DistanceX", -1, 1, 59, 3, 87.584727),
    Sketcher.Constraint("DistanceX", -1, 1, 63, 3, 96.533555),
    Sketcher.Constraint("DistanceX", -1, 1, 65, 3, 121.897202),
    Sketcher.Constraint("DistanceX", -1, 1, 66, 3, 133.334694),
    Sketcher.Constraint("DistanceX", -1, 1, 67, 3, 107.971048),
    Sketcher.Constraint("DistanceX", -1, 1, 69, 3, 130.846034),
])
pad1 = body.newObject("PartDesign::Pad", "Pad")
pad1.Profile = sketch1
pad1.Length = 0.8382
pad1.Reversed = True

sketch2 = body.newObject("Sketcher::SketchObject", "Sketch001")
sketch2.AttachmentSupport = (doc.getObject("YZ_Plane"), [""])
sketch2.MapMode = "FlatFace"
sketch2.addGeometry([
    Part.LineSegment(Vector(0.8, -79.8, 0), Vector(0, -79.8, 0)),
    Part.LineSegment(Vector(0, -79.8, 0), Vector(0, -72.2, 0)),
    Part.LineSegment(Vector(0, -72.2, 0), Vector(0.8, -72.2, 0)),
    Part.LineSegment(Vector(0.8, -72.2, 0), Vector(0.8, -79.8, 0)),
    Part.LineSegment(Vector(0.8, -7.6, 0), Vector(0, -7.6, 0)),
    Part.LineSegment(Vector(0, -7.6, 0), Vector(0, 0, 0)),
    Part.LineSegment(Vector(0, 0, 0), Vector(0.8, 0, 0)),
    Part.LineSegment(Vector(0.8, 0, 0), Vector(0.8, -7.6, 0)),
], False)
sketch2.addConstraint([
    Sketcher.Constraint("Coincident", 0, 2, 1, 1),
    Sketcher.Constraint("Coincident", 1, 2, 2, 1),
    Sketcher.Constraint("Coincident", 2, 2, 3, 1),
    Sketcher.Constraint("Coincident", 3, 2, 0, 1),
    Sketcher.Constraint("Coincident", 4, 2, 5, 1),
    Sketcher.Constraint("Coincident", 5, 2, 6, 1),
    Sketcher.Constraint("Coincident", 6, 2, 7, 1),
    Sketcher.Constraint("Coincident", 7, 2, 4, 1),
    Sketcher.Constraint("Horizontal", 0),
    Sketcher.Constraint("Vertical", 1),
    Sketcher.Constraint("Horizontal", 2),
    Sketcher.Constraint("Vertical", 3),
    Sketcher.Constraint("Horizontal", 4),
    Sketcher.Constraint("Vertical", 5),
    Sketcher.Constraint("Horizontal", 6),
    Sketcher.Constraint("Vertical", 7),
    Sketcher.Constraint("Coincident", 5, 2, -1, 1),
    Sketcher.Constraint("PointOnObject", 0, 2, -2),
    Sketcher.Constraint("Vertical", 3, 2, 6, 2),
    Sketcher.Constraint("Equal", 3, 5),
    Sketcher.Constraint("DistanceY", 1, 1, 1, 2, 7.62),
    Sketcher.Constraint("DistanceX", 0, 2, 0, 1, 0.8382),
    Sketcher.Constraint("DistanceY", 0, 2, -1, 1, 79.8044),
])
pad2 = body.newObject("PartDesign::Pad", "Pad001")
pad2.Profile = sketch2
pad2.Length = 5.08
pad2.Reversed = True

doc.recompute()
